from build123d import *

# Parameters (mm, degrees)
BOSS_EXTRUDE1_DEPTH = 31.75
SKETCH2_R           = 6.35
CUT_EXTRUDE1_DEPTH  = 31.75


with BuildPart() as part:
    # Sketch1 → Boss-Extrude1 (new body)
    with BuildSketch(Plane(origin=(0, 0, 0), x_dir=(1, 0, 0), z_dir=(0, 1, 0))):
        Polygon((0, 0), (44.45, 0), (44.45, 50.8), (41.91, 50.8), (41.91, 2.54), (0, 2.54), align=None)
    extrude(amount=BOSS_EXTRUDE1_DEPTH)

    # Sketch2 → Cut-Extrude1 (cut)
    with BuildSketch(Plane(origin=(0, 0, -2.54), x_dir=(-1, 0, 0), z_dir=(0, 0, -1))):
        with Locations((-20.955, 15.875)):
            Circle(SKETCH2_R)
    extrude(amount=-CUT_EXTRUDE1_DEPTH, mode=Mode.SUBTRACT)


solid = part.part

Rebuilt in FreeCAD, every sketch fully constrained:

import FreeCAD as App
import Part
import Sketcher
Q = App.Units.Quantity

doc = App.newDocument("Part")
params = doc.addObject("Spreadsheet::Sheet", "Params")
for row, (alias, value) in enumerate([
    ("sketch1_height", "2 in"),
    ("sketch1_width", "0.1 in"),
    ("sketch1_width2", "1.75 in"),
    ("pad1_length", "1.25 in"),
    ("sketch2_diameter", "0.5 in"),
    ("pocket1_length", "1.25 in"),
], start=1):
    params.set(f"A{row}", alias)
    params.set(f"B{row}", "=" + value)
    params.setAlias(f"B{row}", alias)

body = doc.addObject("PartDesign::Body", "Body")

# Sketch on XZ plane
sketch1 = body.newObject("Sketcher::SketchObject", "Sketch")
sketch1.AttachmentSupport = (doc.getObject("XZ_Plane"), [""])
sketch1.MapMode = "FlatFace"
sketch1.addGeometry([
    Part.LineSegment(App.Vector(0, 0, 0), App.Vector(44.45, 0, 0)),  # 0
    Part.LineSegment(App.Vector(44.45, 0, 0), App.Vector(44.45, -50.8, 0)),  # 1
    Part.LineSegment(App.Vector(44.45, -50.8, 0), App.Vector(41.91, -50.8, 0)),  # 2
    Part.LineSegment(App.Vector(41.91, -50.8, 0), App.Vector(41.91, -2.54, 0)),  # 3
    Part.LineSegment(App.Vector(41.91, -2.54, 0), App.Vector(0, -2.54, 0)),  # 4
    Part.LineSegment(App.Vector(0, -2.54, 0), App.Vector(0, 0, 0)),  # 5
], False)
sketch1.addConstraint([
    Sketcher.Constraint("Coincident", 0, 2, 1, 1),
    Sketcher.Constraint("Coincident", 1, 2, 2, 1),
    Sketcher.Constraint("Coincident", 2, 2, 3, 1),
    Sketcher.Constraint("Coincident", 3, 2, 4, 1),
    Sketcher.Constraint("Coincident", 4, 2, 5, 1),
    Sketcher.Constraint("Coincident", 5, 2, 0, 1),
    Sketcher.Constraint("Horizontal", 0),
    Sketcher.Constraint("Vertical", 1),
    Sketcher.Constraint("Horizontal", 2),
    Sketcher.Constraint("Vertical", 3),
    Sketcher.Constraint("Horizontal", 4),
    Sketcher.Constraint("Vertical", 5),
    Sketcher.Constraint("Coincident", 5, 2, -1, 1),
    Sketcher.Constraint("Equal", 2, 5),
    Sketcher.Constraint("DistanceY", 1, 2, 1, 1, Q("2 in")),
    Sketcher.Constraint("DistanceX", 2, 2, 2, 1, Q("0.1 in")),
    Sketcher.Constraint("DistanceX", 0, 1, 0, 2, Q("1.75 in")),
])
sketch1.setExpression("Constraints[14]", "Params.sketch1_height")
sketch1.setExpression("Constraints[15]", "Params.sketch1_width")
sketch1.setExpression("Constraints[16]", "Params.sketch1_width2")
pad1 = body.newObject("PartDesign::Pad", "Pad")
pad1.Profile = sketch1
pad1.setExpression("Length", "Params.pad1_length")
pad1.Reversed = True

# Sketch on XY plane
sketch2 = body.newObject("Sketcher::SketchObject", "Sketch001")
sketch2.AttachmentSupport = (doc.getObject("XY_Plane"), [""])
sketch2.MapMode = "FlatFace"
sketch2.AttachmentOffset = App.Placement(App.Vector(0, 0, -0.1 * 25.4), App.Rotation())
sketch2.addGeometry(Part.Circle(App.Vector(20.955, 15.875, 0), App.Vector(0, 0, 1), 6.35), False)
sketch2.addConstraint([
    Sketcher.Constraint("Diameter", 0, Q("0.5 in")),
    Sketcher.Constraint("DistanceX", -1, 1, 0, 3, Q("0.825 in")),
    Sketcher.Constraint("DistanceY", -1, 1, 0, 3, Q("0.625 in")),
])
sketch2.setExpression("Constraints[0]", "Params.sketch2_diameter")
pocket1 = body.newObject("PartDesign::Pocket", "Pocket")
pocket1.Profile = sketch2
pocket1.setExpression("Length", "Params.pocket1_length")
pocket1.Reversed = True

doc.recompute()
